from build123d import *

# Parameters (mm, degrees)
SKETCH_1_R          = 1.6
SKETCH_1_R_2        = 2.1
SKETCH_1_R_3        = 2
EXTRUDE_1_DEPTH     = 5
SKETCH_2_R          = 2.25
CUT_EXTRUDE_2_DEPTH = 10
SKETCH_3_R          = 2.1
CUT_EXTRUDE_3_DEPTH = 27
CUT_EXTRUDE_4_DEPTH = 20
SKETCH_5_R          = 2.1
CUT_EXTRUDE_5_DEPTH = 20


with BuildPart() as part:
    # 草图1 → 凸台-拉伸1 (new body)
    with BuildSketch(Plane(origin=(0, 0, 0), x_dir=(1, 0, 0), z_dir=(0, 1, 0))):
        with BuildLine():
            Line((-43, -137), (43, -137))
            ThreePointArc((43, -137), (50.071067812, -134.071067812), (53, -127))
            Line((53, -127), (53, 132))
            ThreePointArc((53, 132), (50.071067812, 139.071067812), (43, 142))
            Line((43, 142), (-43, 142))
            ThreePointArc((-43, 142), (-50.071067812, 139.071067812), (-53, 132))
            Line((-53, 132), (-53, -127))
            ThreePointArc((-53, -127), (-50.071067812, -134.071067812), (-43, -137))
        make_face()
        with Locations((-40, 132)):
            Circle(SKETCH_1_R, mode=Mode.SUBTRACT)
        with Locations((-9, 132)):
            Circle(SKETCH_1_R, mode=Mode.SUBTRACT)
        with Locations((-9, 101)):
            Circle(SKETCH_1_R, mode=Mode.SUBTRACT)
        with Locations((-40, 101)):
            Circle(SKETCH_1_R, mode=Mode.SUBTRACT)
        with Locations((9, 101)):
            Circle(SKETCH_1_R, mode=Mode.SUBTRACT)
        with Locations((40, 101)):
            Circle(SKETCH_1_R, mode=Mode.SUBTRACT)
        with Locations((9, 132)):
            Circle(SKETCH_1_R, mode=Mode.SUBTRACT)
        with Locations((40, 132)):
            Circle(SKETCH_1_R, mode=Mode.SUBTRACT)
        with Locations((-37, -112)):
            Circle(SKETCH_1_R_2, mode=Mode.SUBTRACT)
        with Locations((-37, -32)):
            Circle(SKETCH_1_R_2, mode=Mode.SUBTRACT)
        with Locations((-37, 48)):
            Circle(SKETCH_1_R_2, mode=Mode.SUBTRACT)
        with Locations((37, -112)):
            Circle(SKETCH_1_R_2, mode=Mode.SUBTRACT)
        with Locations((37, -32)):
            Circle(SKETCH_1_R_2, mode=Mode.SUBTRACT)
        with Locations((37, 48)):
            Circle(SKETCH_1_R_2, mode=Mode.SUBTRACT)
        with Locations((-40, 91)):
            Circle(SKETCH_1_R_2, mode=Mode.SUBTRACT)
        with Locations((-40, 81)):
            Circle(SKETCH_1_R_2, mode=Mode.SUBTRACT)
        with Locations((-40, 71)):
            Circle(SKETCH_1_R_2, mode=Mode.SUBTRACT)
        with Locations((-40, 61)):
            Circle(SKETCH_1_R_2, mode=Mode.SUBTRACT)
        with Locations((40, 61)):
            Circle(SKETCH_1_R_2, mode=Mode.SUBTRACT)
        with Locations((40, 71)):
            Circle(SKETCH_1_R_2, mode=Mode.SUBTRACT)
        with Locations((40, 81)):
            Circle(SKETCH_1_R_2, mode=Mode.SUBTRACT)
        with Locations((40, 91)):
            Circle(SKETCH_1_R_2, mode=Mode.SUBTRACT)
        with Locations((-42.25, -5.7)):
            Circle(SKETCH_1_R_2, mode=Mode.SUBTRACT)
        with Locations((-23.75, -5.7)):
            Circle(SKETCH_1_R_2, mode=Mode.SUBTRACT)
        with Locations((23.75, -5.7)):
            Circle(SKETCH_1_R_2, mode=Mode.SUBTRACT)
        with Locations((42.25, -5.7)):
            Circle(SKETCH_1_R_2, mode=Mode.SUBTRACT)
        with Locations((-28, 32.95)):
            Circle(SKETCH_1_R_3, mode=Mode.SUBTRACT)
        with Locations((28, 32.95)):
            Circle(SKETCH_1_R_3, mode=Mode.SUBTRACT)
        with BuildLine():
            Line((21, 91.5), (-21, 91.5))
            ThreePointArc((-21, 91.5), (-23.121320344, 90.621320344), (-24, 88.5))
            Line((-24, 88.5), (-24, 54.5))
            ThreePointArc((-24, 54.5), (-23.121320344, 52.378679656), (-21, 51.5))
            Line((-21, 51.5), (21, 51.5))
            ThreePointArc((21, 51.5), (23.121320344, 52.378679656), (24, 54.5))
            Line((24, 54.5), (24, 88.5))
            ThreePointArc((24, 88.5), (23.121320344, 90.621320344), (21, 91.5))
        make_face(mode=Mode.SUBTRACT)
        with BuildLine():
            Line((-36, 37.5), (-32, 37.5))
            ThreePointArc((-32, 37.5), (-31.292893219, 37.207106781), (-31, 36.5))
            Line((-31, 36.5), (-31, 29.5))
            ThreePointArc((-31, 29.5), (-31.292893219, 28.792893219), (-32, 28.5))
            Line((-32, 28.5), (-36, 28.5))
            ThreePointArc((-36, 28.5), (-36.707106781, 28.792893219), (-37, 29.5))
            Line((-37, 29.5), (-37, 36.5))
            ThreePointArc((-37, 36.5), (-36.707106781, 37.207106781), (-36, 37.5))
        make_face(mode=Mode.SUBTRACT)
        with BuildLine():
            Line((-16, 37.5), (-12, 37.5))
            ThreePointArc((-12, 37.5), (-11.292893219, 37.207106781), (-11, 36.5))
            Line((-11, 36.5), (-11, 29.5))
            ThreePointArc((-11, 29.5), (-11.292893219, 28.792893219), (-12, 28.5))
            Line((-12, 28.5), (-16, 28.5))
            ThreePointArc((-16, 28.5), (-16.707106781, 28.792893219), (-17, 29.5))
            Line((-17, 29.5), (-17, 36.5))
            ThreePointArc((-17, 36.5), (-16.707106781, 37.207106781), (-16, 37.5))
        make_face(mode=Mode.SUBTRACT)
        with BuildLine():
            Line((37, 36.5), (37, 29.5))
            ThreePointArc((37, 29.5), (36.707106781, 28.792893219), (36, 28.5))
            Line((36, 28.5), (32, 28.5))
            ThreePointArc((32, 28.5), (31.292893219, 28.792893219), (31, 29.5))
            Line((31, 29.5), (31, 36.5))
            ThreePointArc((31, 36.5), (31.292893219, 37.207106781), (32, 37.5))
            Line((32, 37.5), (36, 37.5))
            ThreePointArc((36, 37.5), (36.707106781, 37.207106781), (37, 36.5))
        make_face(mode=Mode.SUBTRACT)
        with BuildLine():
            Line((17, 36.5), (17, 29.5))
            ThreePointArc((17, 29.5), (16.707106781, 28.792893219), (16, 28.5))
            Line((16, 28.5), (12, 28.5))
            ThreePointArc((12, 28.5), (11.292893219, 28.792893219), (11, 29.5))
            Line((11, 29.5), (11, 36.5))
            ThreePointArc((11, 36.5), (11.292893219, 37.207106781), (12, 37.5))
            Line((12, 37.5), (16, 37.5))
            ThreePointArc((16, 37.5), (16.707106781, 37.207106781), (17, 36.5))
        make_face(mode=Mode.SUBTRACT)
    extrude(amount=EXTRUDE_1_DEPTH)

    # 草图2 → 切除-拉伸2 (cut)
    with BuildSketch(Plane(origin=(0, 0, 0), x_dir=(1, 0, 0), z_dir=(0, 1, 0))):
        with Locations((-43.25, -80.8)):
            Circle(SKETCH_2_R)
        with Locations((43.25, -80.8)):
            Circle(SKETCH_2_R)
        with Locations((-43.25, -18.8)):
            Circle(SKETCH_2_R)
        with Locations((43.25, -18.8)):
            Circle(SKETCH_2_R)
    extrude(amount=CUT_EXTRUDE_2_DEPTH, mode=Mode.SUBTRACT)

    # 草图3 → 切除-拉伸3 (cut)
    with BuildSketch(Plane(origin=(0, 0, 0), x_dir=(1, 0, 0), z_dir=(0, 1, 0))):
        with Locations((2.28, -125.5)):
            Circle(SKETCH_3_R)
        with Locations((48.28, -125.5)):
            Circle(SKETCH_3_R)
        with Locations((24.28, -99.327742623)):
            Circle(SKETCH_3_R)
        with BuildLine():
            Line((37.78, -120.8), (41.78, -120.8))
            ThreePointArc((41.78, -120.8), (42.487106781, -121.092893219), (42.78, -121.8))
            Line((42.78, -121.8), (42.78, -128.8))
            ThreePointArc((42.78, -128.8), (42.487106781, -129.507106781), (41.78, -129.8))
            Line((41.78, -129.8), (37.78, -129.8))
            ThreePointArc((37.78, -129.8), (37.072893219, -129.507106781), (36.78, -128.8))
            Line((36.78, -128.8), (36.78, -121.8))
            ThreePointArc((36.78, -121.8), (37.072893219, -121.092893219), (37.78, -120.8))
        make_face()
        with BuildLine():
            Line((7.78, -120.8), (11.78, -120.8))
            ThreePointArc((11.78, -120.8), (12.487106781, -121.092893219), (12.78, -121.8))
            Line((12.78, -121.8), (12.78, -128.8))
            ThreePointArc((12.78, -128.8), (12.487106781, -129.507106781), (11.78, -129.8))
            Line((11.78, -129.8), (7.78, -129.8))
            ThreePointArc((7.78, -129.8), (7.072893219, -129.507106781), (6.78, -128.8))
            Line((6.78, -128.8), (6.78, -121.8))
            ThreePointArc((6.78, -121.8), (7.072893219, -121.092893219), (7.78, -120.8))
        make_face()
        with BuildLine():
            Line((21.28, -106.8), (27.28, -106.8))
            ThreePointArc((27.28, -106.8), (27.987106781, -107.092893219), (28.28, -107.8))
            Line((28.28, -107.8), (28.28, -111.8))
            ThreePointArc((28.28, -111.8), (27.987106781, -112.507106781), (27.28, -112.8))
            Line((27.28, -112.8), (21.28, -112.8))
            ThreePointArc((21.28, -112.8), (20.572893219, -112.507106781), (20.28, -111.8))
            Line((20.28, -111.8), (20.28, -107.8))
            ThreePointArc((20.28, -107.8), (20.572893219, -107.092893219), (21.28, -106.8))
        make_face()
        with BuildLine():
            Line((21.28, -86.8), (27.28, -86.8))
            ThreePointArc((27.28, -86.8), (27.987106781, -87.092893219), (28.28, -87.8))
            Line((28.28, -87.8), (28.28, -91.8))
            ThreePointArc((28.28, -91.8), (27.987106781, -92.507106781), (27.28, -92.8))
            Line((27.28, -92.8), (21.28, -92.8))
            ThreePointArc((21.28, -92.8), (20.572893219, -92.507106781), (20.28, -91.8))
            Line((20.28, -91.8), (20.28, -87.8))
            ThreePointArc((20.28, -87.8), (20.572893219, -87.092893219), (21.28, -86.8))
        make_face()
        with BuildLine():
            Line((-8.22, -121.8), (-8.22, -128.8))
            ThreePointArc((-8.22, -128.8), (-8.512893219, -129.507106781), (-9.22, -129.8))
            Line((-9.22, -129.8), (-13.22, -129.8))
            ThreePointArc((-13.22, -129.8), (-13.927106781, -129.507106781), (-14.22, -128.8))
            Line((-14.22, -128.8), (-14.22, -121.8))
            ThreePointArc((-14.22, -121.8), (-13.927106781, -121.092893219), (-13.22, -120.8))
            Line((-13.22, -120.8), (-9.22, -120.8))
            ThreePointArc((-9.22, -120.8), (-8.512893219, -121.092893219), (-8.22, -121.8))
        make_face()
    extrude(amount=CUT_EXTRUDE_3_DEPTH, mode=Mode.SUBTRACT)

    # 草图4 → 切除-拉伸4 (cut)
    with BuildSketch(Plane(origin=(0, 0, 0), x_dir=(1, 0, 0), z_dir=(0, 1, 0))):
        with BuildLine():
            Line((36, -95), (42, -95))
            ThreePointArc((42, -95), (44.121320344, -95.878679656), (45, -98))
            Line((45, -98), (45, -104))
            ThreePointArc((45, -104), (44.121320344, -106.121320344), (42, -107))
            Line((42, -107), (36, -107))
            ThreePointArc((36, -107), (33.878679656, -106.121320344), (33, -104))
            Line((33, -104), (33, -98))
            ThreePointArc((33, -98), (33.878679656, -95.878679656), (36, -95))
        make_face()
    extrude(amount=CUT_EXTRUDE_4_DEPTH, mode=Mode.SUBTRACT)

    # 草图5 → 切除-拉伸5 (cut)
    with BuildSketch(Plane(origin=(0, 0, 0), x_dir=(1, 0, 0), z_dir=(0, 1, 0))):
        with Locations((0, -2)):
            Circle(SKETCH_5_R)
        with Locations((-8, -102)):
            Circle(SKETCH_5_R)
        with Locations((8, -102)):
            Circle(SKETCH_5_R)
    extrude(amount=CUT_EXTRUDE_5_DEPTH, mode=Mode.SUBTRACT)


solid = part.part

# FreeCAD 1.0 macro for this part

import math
import FreeCAD as App
import Part
import Sketcher

V = App.Vector

doc = App.newDocument("Part")
body = doc.addObject("PartDesign::Body", "Body")

# Sketch on XZ plane
sketch1 = body.newObject("Sketcher::SketchObject", "Sketch")
sketch1.AttachmentSupport = (doc.getObject("XZ_Plane"), [""])
sketch1.MapMode = "FlatFace"
sketch1.addGeometry([
    Part.LineSegment(V(-43, 137, 0), V(43, 137, 0)),  # 0
    Part.ArcOfCircle(Part.Circle(V(43, 127, 0), V(0, 0, 1), 10), math.radians(0), math.radians(90)),  # 1
    Part.LineSegment(V(53, 127, 0), V(53, -132, 0)),  # 2
    Part.ArcOfCircle(Part.Circle(V(43, -132, 0), V(0, 0, 1), 10), math.radians(-90), math.radians(0)),  # 3
    Part.LineSegment(V(43, -142, 0), V(-43, -142, 0)),  # 4
    Part.ArcOfCircle(Part.Circle(V(-43, -132, 0), V(0, 0, 1), 10), math.radians(180), math.radians(270)),  # 5
    Part.LineSegment(V(-53, -132, 0), V(-53, 127, 0)),  # 6
    Part.ArcOfCircle(Part.Circle(V(-43, 127, 0), V(0, 0, 1), 10), math.radians(90), math.radians(180)),  # 7
    Part.Circle(V(-37, 112, 0), V(0, 0, 1), 2.1),  # 8
    Part.Circle(V(-37, 32, 0), V(0, 0, 1), 2.1),  # 9
    Part.Circle(V(-42.25, 5.7, 0), V(0, 0, 1), 2.1),  # 10
    Part.Circle(V(-23.75, 5.7, 0), V(0, 0, 1), 2.1),  # 11
    Part.Circle(V(37, 112, 0), V(0, 0, 1), 2.1),  # 12
    Part.Circle(V(37, 32, 0), V(0, 0, 1), 2.1),  # 13
    Part.Circle(V(23.75, 5.7, 0), V(0, 0, 1), 2.1),  # 14
    Part.Circle(V(42.25, 5.7, 0), V(0, 0, 1), 2.1),  # 15
    Part.ArcOfCircle(Part.Circle(V(-36, -36.5, 0), V(0, 0, 1), 1), math.radians(-180), math.radians(-90)),  # 16
    Part.LineSegment(V(-36, -37.5, 0), V(-32, -37.5, 0)),  # 17
    Part.ArcOfCircle(Part.Circle(V(-32, -36.5, 0), V(0, 0, 1), 1), math.radians(-90), math.radians(0)),  # 18
    Part.LineSegment(V(-31, -36.5, 0), V(-31, -29.5, 0)),  # 19
    Part.ArcOfCircle(Part.Circle(V(-32, -29.5, 0), V(0, 0, 1), 1), math.radians(0), math.radians(90)),  # 20
    Part.LineSegment(V(-32, -28.5, 0), V(-36, -28.5, 0)),  # 21
    Part.ArcOfCircle(Part.Circle(V(-36, -29.5, 0), V(0, 0, 1), 1), math.radians(90), math.radians(180)),  # 22
    Part.LineSegment(V(-37, -29.5, 0), V(-37, -36.5, 0)),  # 23
    Part.Circle(V(-28, -32.95, 0), V(0, 0, 1), 2),  # 24
    Part.Circle(V(-37, -48, 0), V(0, 0, 1), 2.1),  # 25
    Part.Circle(V(-40, -61, 0), V(0, 0, 1), 2.1),  # 26
    Part.Circle(V(-40, -71, 0), V(0, 0, 1), 2.1),  # 27
    Part.ArcOfCircle(Part.Circle(V(-16, -36.5, 0), V(0, 0, 1), 1), math.radians(-180), math.radians(-90)),  # 28
    Part.LineSegment(V(-16, -37.5, 0), V(-12, -37.5, 0)),  # 29
    Part.ArcOfCircle(Part.Circle(V(-12, -36.5, 0), V(0, 0, 1), 1), math.radians(-90), math.radians(0)),  # 30
    Part.LineSegment(V(-11, -36.5, 0), V(-11, -29.5, 0)),  # 31
    Part.ArcOfCircle(Part.Circle(V(-12, -29.5, 0), V(0, 0, 1), 1), math.radians(0), math.radians(90)),  # 32
    Part.LineSegment(V(-12, -28.5, 0), V(-16, -28.5, 0)),  # 33
    Part.ArcOfCircle(Part.Circle(V(-16, -29.5, 0), V(0, 0, 1), 1), math.radians(90), math.radians(180)),  # 34
    Part.LineSegment(V(-17, -29.5, 0), V(-17, -36.5, 0)),  # 35
    Part.Circle(V(-40, -81, 0), V(0, 0, 1), 2.1),  # 36
    Part.Circle(V(-40, -91, 0), V(0, 0, 1), 2.1),  # 37
    Part.Circle(V(-40, -101, 0), V(0, 0, 1), 1.6),  # 38
    Part.Circle(V(-40, -132, 0), V(0, 0, 1), 1.6),  # 39
    Part.Circle(V(-9, -101, 0), V(0, 0, 1), 1.6),  # 40
    Part.Circle(V(-9, -132, 0), V(0, 0, 1), 1.6),  # 41
    Part.ArcOfCircle(Part.Circle(V(16, -36.5, 0), V(0, 0, 1), 1), math.radians(-90), math.radians(0)),  # 42
    Part.LineSegment(V(17, -36.5, 0), V(17, -29.5, 0)),  # 43
    Part.ArcOfCircle(Part.Circle(V(16, -29.5, 0), V(0, 0, 1), 1), math.radians(0), math.radians(90)),  # 44
    Part.LineSegment(V(16, -28.5, 0), V(12, -28.5, 0)),  # 45
    Part.ArcOfCircle(Part.Circle(V(12, -29.5, 0), V(0, 0, 1), 1), math.radians(90), math.radians(180)),  # 46
    Part.LineSegment(V(11, -29.5, 0), V(11, -36.5, 0)),  # 47
    Part.ArcOfCircle(Part.Circle(V(12, -36.5, 0), V(0, 0, 1), 1), math.radians(-180), math.radians(-90)),  # 48
    Part.LineSegment(V(12, -37.5, 0), V(16, -37.5, 0)),  # 49
    Part.LineSegment(V(-21, -91.5, 0), V(21, -91.5, 0)),  # 50
    Part.ArcOfCircle(Part.Circle(V(21, -88.5, 0), V(0, 0, 1), 3), math.radians(-90), math.radians(0)),  # 51
    Part.LineSegment(V(24, -88.5, 0), V(24, -54.5, 0)),  # 52
    Part.ArcOfCircle(Part.Circle(V(21, -54.5, 0), V(0, 0, 1), 3), math.radians(0), math.radians(90)),  # 53
    Part.LineSegment(V(21, -51.5, 0), V(-21, -51.5, 0)),  # 54
    Part.ArcOfCircle(Part.Circle(V(-21, -54.5, 0), V(0, 0, 1), 3), math.radians(90), math.radians(180)),  # 55
    Part.LineSegment(V(-24, -54.5, 0), V(-24, -88.5, 0)),  # 56
    Part.ArcOfCircle(Part.Circle(V(-21, -88.5, 0), V(0, 0, 1), 3), math.radians(180), math.radians(270)),  # 57
    Part.Circle(V(28, -32.95, 0), V(0, 0, 1), 2),  # 58
    Part.ArcOfCircle(Part.Circle(V(36, -36.5, 0), V(0, 0, 1), 1), math.radians(-90), math.radians(0)),  # 59
    Part.LineSegment(V(37, -36.5, 0), V(37, -29.5, 0)),  # 60
    Part.ArcOfCircle(Part.Circle(V(36, -29.5, 0), V(0, 0, 1), 1), math.radians(0), math.radians(90)),  # 61
    Part.LineSegment(V(36, -28.5, 0), V(32, -28.5, 0)),  # 62
    Part.ArcOfCircle(Part.Circle(V(32, -29.5, 0), V(0, 0, 1), 1), math.radians(90), math.radians(180)),  # 63
    Part.LineSegment(V(31, -29.5, 0), V(31, -36.5, 0)),  # 64
    Part.ArcOfCircle(Part.Circle(V(32, -36.5, 0), V(0, 0, 1), 1), math.radians(-180), math.radians(-90)),  # 65
    Part.LineSegment(V(32, -37.5, 0), V(36, -37.5, 0)),  # 66
    Part.Circle(V(37, -48, 0), V(0, 0, 1), 2.1),  # 67
    Part.Circle(V(40, -61, 0), V(0, 0, 1), 2.1),  # 68
    Part.Circle(V(40, -71, 0), V(0, 0, 1), 2.1),  # 69
    Part.Circle(V(9, -101, 0), V(0, 0, 1), 1.6),  # 70
    Part.Circle(V(9, -132, 0), V(0, 0, 1), 1.6),  # 71
    Part.Circle(V(40, -81, 0), V(0, 0, 1), 2.1),  # 72
    Part.Circle(V(40, -91, 0), V(0, 0, 1), 2.1),  # 73
    Part.Circle(V(40, -101, 0), V(0, 0, 1), 1.6),  # 74
    Part.Circle(V(40, -132, 0), V(0, 0, 1), 1.6),  # 75
], False)
sketch1.addConstraint([
    Sketcher.Constraint("Tangent", 0, 2, 1, 2),
    Sketcher.Constraint("Tangent", 1, 1, 2, 1),
    Sketcher.Constraint("Tangent", 2, 2, 3, 2),
    Sketcher.Constraint("Tangent", 3, 1, 4, 1),
    Sketcher.Constraint("Tangent", 4, 2, 5, 2),
    Sketcher.Constraint("Tangent", 5, 1, 6, 1),
    Sketcher.Constraint("Tangent", 6, 2, 7, 2),
    Sketcher.Constraint("Tangent", 7, 1, 0, 1),
    Sketcher.Constraint("Tangent", 16, 2, 17, 1),
    Sketcher.Constraint("Tangent", 17, 2, 18, 1),
    Sketcher.Constraint("Tangent", 18, 2, 19, 1),
    Sketcher.Constraint("Tangent", 19, 2, 20, 1),
    Sketcher.Constraint("Tangent", 20, 2, 21, 1),
    Sketcher.Constraint("Tangent", 21, 2, 22, 1),
    Sketcher.Constraint("Tangent", 22, 2, 23, 1),
    Sketcher.Constraint("Tangent", 23, 2, 16, 1),
    Sketcher.Constraint("Tangent", 28, 2, 29, 1),
    Sketcher.Constraint("Tangent", 29, 2, 30, 1),
    Sketcher.Constraint("Tangent", 30, 2, 31, 1),
    Sketcher.Constraint("Tangent", 31, 2, 32, 1),
    Sketcher.Constraint("Tangent", 32, 2, 33, 1),
    Sketcher.Constraint("Tangent", 33, 2, 34, 1),
    Sketcher.Constraint("Tangent", 34, 2, 35, 1),
    Sketcher.Constraint("Tangent", 35, 2, 28, 1),
    Sketcher.Constraint("Tangent", 42, 2, 43, 1),
    Sketcher.Constraint("Tangent", 43, 2, 44, 1),
    Sketcher.Constraint("Tangent", 44, 2, 45, 1),
    Sketcher.Constraint("Tangent", 45, 2, 46, 1),
    Sketcher.Constraint("Tangent", 46, 2, 47, 1),
    Sketcher.Constraint("Tangent", 47, 2, 48, 1),
    Sketcher.Constraint("Tangent", 48, 2, 49, 1),
    Sketcher.Constraint("Tangent", 49, 2, 42, 1),
    Sketcher.Constraint("Tangent", 50, 2, 51, 1),
    Sketcher.Constraint("Tangent", 51, 2, 52, 1),
    Sketcher.Constraint("Tangent", 52, 2, 53, 1),
    Sketcher.Constraint("Tangent", 53, 2, 54, 1),
    Sketcher.Constraint("Tangent", 54, 2, 55, 1),
    Sketcher.Constraint("Tangent", 55, 2, 56, 1),
    Sketcher.Constraint("Tangent", 56, 2, 57, 1),
    Sketcher.Constraint("Tangent", 57, 2, 50, 1),
    Sketcher.Constraint("Tangent", 59, 2, 60, 1),
    Sketcher.Constraint("Tangent", 60, 2, 61, 1),
    Sketcher.Constraint("Tangent", 61, 2, 62, 1),
    Sketcher.Constraint("Tangent", 62, 2, 63, 1),
    Sketcher.Constraint("Tangent", 63, 2, 64, 1),
    Sketcher.Constraint("Tangent", 64, 2, 65, 1),
    Sketcher.Constraint("Tangent", 65, 2, 66, 1),
    Sketcher.Constraint("Tangent", 66, 2, 59, 1),
    Sketcher.Constraint("Horizontal", 0),
    Sketcher.Constraint("Vertical", 2),
    Sketcher.Constraint("Horizontal", 4),
    Sketcher.Constraint("Vertical", 6),
    Sketcher.Constraint("Horizontal", 17),
    Sketcher.Constraint("Vertical", 19),
    Sketcher.Constraint("Horizontal", 21),
    Sketcher.Constraint("Vertical", 23),
    Sketcher.Constraint("Horizontal", 29),
    Sketcher.Constraint("Vertical", 31),
    Sketcher.Constraint("Horizontal", 33),
    Sketcher.Constraint("Vertical", 35),
    Sketcher.Constraint("Vertical", 43),
    Sketcher.Constraint("Horizontal", 45),
    Sketcher.Constraint("Vertical", 47),
    Sketcher.Constraint("Horizontal", 49),
    Sketcher.Constraint("Horizontal", 50),
    Sketcher.Constraint("Vertical", 52),
    Sketcher.Constraint("Horizontal", 54),
    Sketcher.Constraint("Vertical", 56),
    Sketcher.Constraint("Vertical", 60),
    Sketcher.Constraint("Horizontal", 62),
    Sketcher.Constraint("Vertical", 64),
    Sketcher.Constraint("Horizontal", 66),
    Sketcher.Constraint("Equal", 1, 3),
    Sketcher.Constraint("Equal", 3, 5),
    Sketcher.Constraint("Equal", 5, 7),
    Sketcher.Constraint("Equal", 8, 9),
    Sketcher.Constraint("Equal", 9, 10),
    Sketcher.Constraint("Equal", 10, 11),
    Sketcher.Constraint("Equal", 11, 12),
    Sketcher.Constraint("Equal", 12, 13),
    Sketcher.Constraint("Equal", 13, 14),
    Sketcher.Constraint("Equal", 14, 15),
    Sketcher.Constraint("Equal", 16, 18),
    Sketcher.Constraint("Equal", 18, 20),
    Sketcher.Constraint("Equal", 20, 22),
    Sketcher.Constraint("Equal", 15, 25),
    Sketcher.Constraint("Equal", 25, 26),
    Sketcher.Constraint("Equal", 26, 27),
    Sketcher.Constraint("Equal", 22, 28),
    Sketcher.Constraint("Equal", 28, 30),
    Sketcher.Constraint("Equal", 30, 32),
    Sketcher.Constraint("Equal", 32, 34),
    Sketcher.Constraint("Equal", 27, 36),
    Sketcher.Constraint("Equal", 36, 37),
    Sketcher.Constraint("Equal", 38, 39),
    Sketcher.Constraint("Equal", 39, 40),
    Sketcher.Constraint("Equal", 40, 41),
    Sketcher.Constraint("Equal", 34, 42),
    Sketcher.Constraint("Equal", 42, 44),
    Sketcher.Constraint("Equal", 44, 46),
    Sketcher.Constraint("Equal", 46, 48),
    Sketcher.Constraint("Equal", 51, 53),
    Sketcher.Constraint("Equal", 53, 55),
    Sketcher.Constraint("Equal", 55, 57),
    Sketcher.Constraint("Equal", 24, 58),
    Sketcher.Constraint("Equal", 48, 59),
    Sketcher.Constraint("Equal", 59, 61),
    Sketcher.Constraint("Equal", 61, 63),
    Sketcher.Constraint("Equal", 63, 65),
    Sketcher.Constraint("Equal", 37, 67),
    Sketcher.Constraint("Equal", 67, 68),
    Sketcher.Constraint("Equal", 68, 69),
    Sketcher.Constraint("Equal", 41, 70),
    Sketcher.Constraint("Equal", 70, 71),
    Sketcher.Constraint("Equal", 69, 72),
    Sketcher.Constraint("Equal", 72, 73),
    Sketcher.Constraint("Equal", 71, 74),
    Sketcher.Constraint("Equal", 74, 75),
    Sketcher.Constraint("Symmetric", 8, 3, 12, 3, -2),
    Sketcher.Constraint("Symmetric", 9, 3, 13, 3, -2),
    Sketcher.Constraint("Symmetric", 11, 3, 14, 3, -2),
    Sketcher.Constraint("Symmetric", 10, 3, 15, 3, -2),
    Sketcher.Constraint("Symmetric", 28, 3, 42, 3, -2),
    Sketcher.Constraint("Symmetric", 32, 3, 46, 3, -2),
    Sketcher.Constraint("Symmetric", 24, 3, 58, 3, -2),
    Sketcher.Constraint("Symmetric", 16, 3, 59, 3, -2),
    Sketcher.Constraint("Symmetric", 20, 3, 63, 3, -2),
    Sketcher.Constraint("Symmetric", 25, 3, 67, 3, -2),
    Sketcher.Constraint("Symmetric", 26, 3, 68, 3, -2),
    Sketcher.Constraint("Symmetric", 27, 3, 69, 3, -2),
    Sketcher.Constraint("Symmetric", 40, 3, 70, 3, -2),
    Sketcher.Constraint("Symmetric", 41, 3, 71, 3, -2),
    Sketcher.Constraint("Symmetric", 36, 3, 72, 3, -2),
    Sketcher.Constraint("Symmetric", 37, 3, 73, 3, -2),
    Sketcher.Constraint("Symmetric", 38, 3, 74, 3, -2),
    Sketcher.Constraint("Symmetric", 39, 3, 75, 3, -2),
    Sketcher.Constraint("Horizontal", 10, 3, 11, 3),
    Sketcher.Constraint("Horizontal", 18, 3, 28, 3),
    Sketcher.Constraint("Horizontal", 22, 3, 32, 3),
    Sketcher.Constraint("Horizontal", 5, 3, 39, 3),
    Sketcher.Constraint("Horizontal", 38, 3, 40, 3),
    Sketcher.Constraint("Horizontal", 39, 3, 41, 3),
    Sketcher.Constraint("Vertical", 8, 3, 9, 3),
    Sketcher.Constraint("Vertical", 9, 3, 25, 3),
    Sketcher.Constraint("Vertical", 26, 3, 27, 3),
    Sketcher.Constraint("Vertical", 27, 3, 36, 3),
    Sketcher.Constraint("Vertical", 36, 3, 37, 3),
    Sketcher.Constraint("Vertical", 37, 3, 38, 3),
    Sketcher.Constraint("Vertical", 38, 3, 39, 3),
    Sketcher.Constraint("Vertical", 40, 3, 41, 3),
    Sketcher.Constraint("Vertical", 25, 3, 22, 2),
    Sketcher.Constraint("Equal", 21, 29),
    Sketcher.Constraint("Diameter", 24, 4.0),
    Sketcher.Constraint("Radius", 1, 10.0),
    Sketcher.Constraint("Radius", 16, 1.0),
    Sketcher.Constraint("Radius", 51, 3.0),
    Sketcher.Constraint("Diameter", 8, 4.2),
    Sketcher.Constraint("Diameter", 38, 3.2),
    Sketcher.Constraint("DistanceX", 0, 1, 0, 2, 86.0),
    Sketcher.Constraint("DistanceX", 17, 1, 17, 2, 4.0),
    Sketcher.Constraint("DistanceX", 50, 1, 50, 2, 42.0),
    Sketcher.Constraint("DistanceY", 2, 2, 2, 1, 259.0),
    Sketcher.Constraint("DistanceY", 19, 1, 19, 2, 7.0),
    Sketcher.Constraint("DistanceY", 52, 1, 52, 2, 34.0),
    Sketcher.Constraint("DistanceX", -1, 1, 1, 3, 43.0),
    Sketcher.Constraint("DistanceY", -1, 1, 1, 3, 127.0),
    Sketcher.Constraint("DistanceX", 8, 3, -1, 1, 37.0),
    Sketcher.Constraint("DistanceY", -1, 1, 8, 3, 112.0),
    Sketcher.Constraint("DistanceY", -1, 1, 9, 3, 32.0),
    Sketcher.Constraint("DistanceX", 24, 3, -1, 1, 28.0),
    Sketcher.Constraint("DistanceY", 25, 3, -1, 1, 48.0),
    Sketcher.Constraint("DistanceX", 26, 3, -1, 1, 40.0),
    Sketcher.Constraint("DistanceY", 26, 3, -1, 1, 61.0),
    Sketcher.Constraint("DistanceY", 27, 3, -1, 1, 71.0),
    Sketcher.Constraint("DistanceX", 28, 3, -1, 1, 16.0),
    Sketcher.Constraint("DistanceY", 36, 3, -1, 1, 81.0),
    Sketcher.Constraint("DistanceY", 37, 3, -1, 1, 91.0),
    Sketcher.Constraint("DistanceY", 38, 3, -1, 1, 101.0),
    Sketcher.Constraint("DistanceX", 40, 3, -1, 1, 9.0),
    Sketcher.Constraint("DistanceX", -1, 1, 51, 3, 21.0),
    Sketcher.Constraint("DistanceY", -1, 1, 10, 3, 5.7),
    Sketcher.Constraint("DistanceY", 16, 3, -1, 1, 36.5),
    Sketcher.Constraint("DistanceY", 51, 3, -1, 1, 88.5),
    Sketcher.Constraint("DistanceX", 10, 3, -1, 1, 42.25),
    Sketcher.Constraint("DistanceX", 11, 3, -1, 1, 23.75),
    Sketcher.Constraint("DistanceY", 24, 3, -1, 1, 32.95),
])
pad1 = body.newObject("PartDesign::Pad", "Pad")
pad1.Profile = sketch1
pad1.Length = 5
pad1.Reversed = True

# Sketch on XZ plane
sketch2 = body.newObject("Sketcher::SketchObject", "Sketch001")
sketch2.AttachmentSupport = (doc.getObject("XZ_Plane"), [""])
sketch2.MapMode = "FlatFace"
sketch2.addGeometry([
    Part.Circle(V(-43.25, 80.8, 0), V(0, 0, 1), 2.25),
    Part.Circle(V(43.25, 80.8, 0), V(0, 0, 1), 2.25),
    Part.Circle(V(-43.25, 18.8, 0), V(0, 0, 1), 2.25),
    Part.Circle(V(43.25, 18.8, 0), V(0, 0, 1), 2.25),
], False)
sketch2.addConstraint([
    Sketcher.Constraint("Equal", 0, 1),
    Sketcher.Constraint("Equal", 1, 2),
    Sketcher.Constraint("Equal", 2, 3),
    Sketcher.Constraint("Symmetric", 0, 3, 1, 3, -2),
    Sketcher.Constraint("Symmetric", 2, 3, 3, 3, -2),
    Sketcher.Constraint("Vertical", 0, 3, 2, 3),
    Sketcher.Constraint("Diameter", 0, 4.5),
    Sketcher.Constraint("DistanceY", 2, 3, 0, 3, 62.0),
    Sketcher.Constraint("DistanceY", -1, 1, 0, 3, 80.8),
    Sketcher.Constraint("DistanceX", 0, 3, 1, 3, 86.5),
])
pocket1 = body.newObject("PartDesign::Pocket", "Pocket")
pocket1.Profile = sketch2
pocket1.Length = 10

# Sketch on XZ plane
sketch3 = body.newObject("Sketcher::SketchObject", "Sketch002")
sketch3.AttachmentSupport = (doc.getObject("XZ_Plane"), [""])
sketch3.MapMode = "FlatFace"
sketch3.addGeometry([
    Part.Circle(V(2.28, 125.5, 0), V(0, 0, 1), 2.1),  # 0
    Part.Circle(V(48.28, 125.5, 0), V(0, 0, 1), 2.1),  # 1
    Part.Circle(V(24.28, 99.327743, 0), V(0, 0, 1), 2.1),  # 2
    Part.LineSegment(V(41.78, 120.8, 0), V(37.78, 120.8, 0)),  # 3
    Part.ArcOfCircle(Part.Circle(V(37.78, 121.8, 0), V(0, 0, 1), 1), math.radians(-180), math.radians(-90)),  # 4
    Part.LineSegment(V(36.78, 121.8, 0), V(36.78, 128.8, 0)),  # 5
    Part.ArcOfCircle(Part.Circle(V(37.78, 128.8, 0), V(0, 0, 1), 1), math.radians(90), math.radians(180)),  # 6
    Part.LineSegment(V(37.78, 129.8, 0), V(41.78, 129.8, 0)),  # 7
    Part.ArcOfCircle(Part.Circle(V(41.78, 128.8, 0), V(0, 0, 1), 1), math.radians(0), math.radians(90)),  # 8
    Part.LineSegment(V(42.78, 128.8, 0), V(42.78, 121.8, 0)),  # 9
    Part.ArcOfCircle(Part.Circle(V(41.78, 121.8, 0), V(0, 0, 1), 1), math.radians(-90), math.radians(0)),  # 10
    Part.LineSegment(V(11.78, 120.8, 0), V(7.78, 120.8, 0)),  # 11
    Part.ArcOfCircle(Part.Circle(V(7.78, 121.8, 0), V(0, 0, 1), 1), math.radians(-180), math.radians(-90)),  # 12
    Part.LineSegment(V(6.78, 121.8, 0), V(6.78, 128.8, 0)),  # 13
    Part.ArcOfCircle(Part.Circle(V(7.78, 128.8, 0), V(0, 0, 1), 1), math.radians(90), math.radians(180)),  # 14
    Part.LineSegment(V(7.78, 129.8, 0), V(11.78, 129.8, 0)),  # 15
    Part.ArcOfCircle(Part.Circle(V(11.78, 128.8, 0), V(0, 0, 1), 1), math.radians(0), math.radians(90)),  # 16
    Part.LineSegment(V(12.78, 128.8, 0), V(12.78, 121.8, 0)),  # 17
    Part.ArcOfCircle(Part.Circle(V(11.78, 121.8, 0), V(0, 0, 1), 1), math.radians(-90), math.radians(0)),  # 18
    Part.LineSegment(V(27.28, 106.8, 0), V(21.28, 106.8, 0)),  # 19
    Part.ArcOfCircle(Part.Circle(V(21.28, 107.8, 0), V(0, 0, 1), 1), math.radians(-180), math.radians(-90)),  # 20
    Part.LineSegment(V(20.28, 107.8, 0), V(20.28, 111.8, 0)),  # 21
    Part.ArcOfCircle(Part.Circle(V(21.28, 111.8, 0), V(0, 0, 1), 1), math.radians(90), math.radians(180)),  # 22
    Part.LineSegment(V(21.28, 112.8, 0), V(27.28, 112.8, 0)),  # 23
    Part.ArcOfCircle(Part.Circle(V(27.28, 111.8, 0), V(0, 0, 1), 1), math.radians(0), math.radians(90)),  # 24
    Part.LineSegment(V(28.28, 111.8, 0), V(28.28, 107.8, 0)),  # 25
    Part.ArcOfCircle(Part.Circle(V(27.28, 107.8, 0), V(0, 0, 1), 1), math.radians(-90), math.radians(0)),  # 26
    Part.LineSegment(V(27.28, 86.8, 0), V(21.28, 86.8, 0)),  # 27
    Part.ArcOfCircle(Part.Circle(V(21.28, 87.8, 0), V(0, 0, 1), 1), math.radians(-180), math.radians(-90)),  # 28
    Part.LineSegment(V(20.28, 87.8, 0), V(20.28, 91.8, 0)),  # 29
    Part.ArcOfCircle(Part.Circle(V(21.28, 91.8, 0), V(0, 0, 1), 1), math.radians(90), math.radians(180)),  # 30
    Part.LineSegment(V(21.28, 92.8, 0), V(27.28, 92.8, 0)),  # 31
    Part.ArcOfCircle(Part.Circle(V(27.28, 91.8, 0), V(0, 0, 1), 1), math.radians(0), math.radians(90)),  # 32
    Part.LineSegment(V(28.28, 91.8, 0), V(28.28, 87.8, 0)),  # 33
    Part.ArcOfCircle(Part.Circle(V(27.28, 87.8, 0), V(0, 0, 1), 1), math.radians(-90), math.radians(0)),  # 34
    Part.LineSegment(V(-8.22, 128.8, 0), V(-8.22, 121.8, 0)),  # 35
    Part.ArcOfCircle(Part.Circle(V(-9.22, 121.8, 0), V(0, 0, 1), 1), math.radians(-90), math.radians(0)),  # 36
    Part.LineSegment(V(-9.22, 120.8, 0), V(-13.22, 120.8, 0)),  # 37
    Part.ArcOfCircle(Part.Circle(V(-13.22, 121.8, 0), V(0, 0, 1), 1), math.radians(-180), math.radians(-90)),  # 38
    Part.LineSegment(V(-14.22, 121.8, 0), V(-14.22, 128.8, 0)),  # 39
    Part.ArcOfCircle(Part.Circle(V(-13.22, 128.8, 0), V(0, 0, 1), 1), math.radians(90), math.radians(180)),  # 40
    Part.LineSegment(V(-13.22, 129.8, 0), V(-9.22, 129.8, 0)),  # 41
    Part.ArcOfCircle(Part.Circle(V(-9.22, 128.8, 0), V(0, 0, 1), 1), math.radians(0), math.radians(90)),  # 42
], False)
sketch3.addConstraint([
    Sketcher.Constraint("Tangent", 3, 2, 4, 2),
    Sketcher.Constraint("Tangent", 4, 1, 5, 1),
    Sketcher.Constraint("Tangent", 5, 2, 6, 2),
    Sketcher.Constraint("Tangent", 6, 1, 7, 1),
    Sketcher.Constraint("Tangent", 7, 2, 8, 2),
    Sketcher.Constraint("Tangent", 8, 1, 9, 1),
    Sketcher.Constraint("Tangent", 9, 2, 10, 2),
    Sketcher.Constraint("Tangent", 10, 1, 3, 1),
    Sketcher.Constraint("Tangent", 11, 2, 12, 2),
    Sketcher.Constraint("Tangent", 12, 1, 13, 1),
    Sketcher.Constraint("Tangent", 13, 2, 14, 2),
    Sketcher.Constraint("Tangent", 14, 1, 15, 1),
    Sketcher.Constraint("Tangent", 15, 2, 16, 2),
    Sketcher.Constraint("Tangent", 16, 1, 17, 1),
    Sketcher.Constraint("Tangent", 17, 2, 18, 2),
    Sketcher.Constraint("Tangent", 18, 1, 11, 1),
    Sketcher.Constraint("Tangent", 19, 2, 20, 2),
    Sketcher.Constraint("Tangent", 20, 1, 21, 1),
    Sketcher.Constraint("Tangent", 21, 2, 22, 2),
    Sketcher.Constraint("Tangent", 22, 1, 23, 1),
    Sketcher.Constraint("Tangent", 23, 2, 24, 2),
    Sketcher.Constraint("Tangent", 24, 1, 25, 1),
    Sketcher.Constraint("Tangent", 25, 2, 26, 2),
    Sketcher.Constraint("Tangent", 26, 1, 19, 1),
    Sketcher.Constraint("Tangent", 27, 2, 28, 2),
    Sketcher.Constraint("Tangent", 28, 1, 29, 1),
    Sketcher.Constraint("Tangent", 29, 2, 30, 2),
    Sketcher.Constraint("Tangent", 30, 1, 31, 1),
    Sketcher.Constraint("Tangent", 31, 2, 32, 2),
    Sketcher.Constraint("Tangent", 32, 1, 33, 1),
    Sketcher.Constraint("Tangent", 33, 2, 34, 2),
    Sketcher.Constraint("Tangent", 34, 1, 27, 1),
    Sketcher.Constraint("Tangent", 35, 2, 36, 2),
    Sketcher.Constraint("Tangent", 36, 1, 37, 1),
    Sketcher.Constraint("Tangent", 37, 2, 38, 2),
    Sketcher.Constraint("Tangent", 38, 1, 39, 1),
    Sketcher.Constraint("Tangent", 39, 2, 40, 2),
    Sketcher.Constraint("Tangent", 40, 1, 41, 1),
    Sketcher.Constraint("Tangent", 41, 2, 42, 2),
    Sketcher.Constraint("Tangent", 42, 1, 35, 1),
    Sketcher.Constraint("Horizontal", 3),
    Sketcher.Constraint("Vertical", 5),
    Sketcher.Constraint("Horizontal", 7),
    Sketcher.Constraint("Vertical", 9),
    Sketcher.Constraint("Horizontal", 11),
    Sketcher.Constraint("Vertical", 13),
    Sketcher.Constraint("Horizontal", 15),
    Sketcher.Constraint("Vertical", 17),
    Sketcher.Constraint("Horizontal", 19),
    Sketcher.Constraint("Vertical", 21),
    Sketcher.Constraint("Horizontal", 23),
    Sketcher.Constraint("Vertical", 25),
    Sketcher.Constraint("Horizontal", 27),
    Sketcher.Constraint("Vertical", 29),
    Sketcher.Constraint("Horizontal", 31),
    Sketcher.Constraint("Vertical", 33),
    Sketcher.Constraint("Vertical", 35),
    Sketcher.Constraint("Horizontal", 37),
    Sketcher.Constraint("Vertical", 39),
    Sketcher.Constraint("Horizontal", 41),
    Sketcher.Constraint("Equal", 0, 1),
    Sketcher.Constraint("Equal", 1, 2),
    Sketcher.Constraint("Equal", 4, 6),
    Sketcher.Constraint("Equal", 6, 8),
    Sketcher.Constraint("Equal", 8, 10),
    Sketcher.Constraint("Equal", 10, 12),
    Sketcher.Constraint("Equal", 12, 14),
    Sketcher.Constraint("Equal", 14, 16),
    Sketcher.Constraint("Equal", 16, 18),
    Sketcher.Constraint("Equal", 18, 20),
    Sketcher.Constraint("Equal", 20, 22),
    Sketcher.Constraint("Equal", 22, 24),
    Sketcher.Constraint("Equal", 24, 26),
    Sketcher.Constraint("Equal", 26, 28),
    Sketcher.Constraint("Equal", 28, 30),
    Sketcher.Constraint("Equal", 30, 32),
    Sketcher.Constraint("Equal", 32, 34),
    Sketcher.Constraint("Equal", 34, 36),
    Sketcher.Constraint("Equal", 36, 38),
    Sketcher.Constraint("Equal", 38, 40),
    Sketcher.Constraint("Equal", 40, 42),
    Sketcher.Constraint("Horizontal", 0, 3, 1, 3),
    Sketcher.Constraint("Horizontal", 10, 3, 12, 3),
    Sketcher.Constraint("Horizontal", 8, 3, 14, 3),
    Sketcher.Constraint("Horizontal", 18, 3, 36, 3),
    Sketcher.Constraint("Horizontal", 16, 3, 40, 3),
    Sketcher.Constraint("Vertical", 22, 3, 28, 3),
    Sketcher.Constraint("Vertical", 26, 3, 32, 3),
    Sketcher.Constraint("Equal", 7, 11),
    Sketcher.Constraint("Equal", 15, 37),
    Sketcher.Constraint("Equal", 41, 21),
    Sketcher.Constraint("Equal", 25, 29),
    Sketcher.Constraint("Radius", 4, 1.0),
    Sketcher.Constraint("Diameter", 0, 4.2),
    Sketcher.Constraint("DistanceX", 3, 2, 3, 1, 4.0),
    Sketcher.Constraint("DistanceX", 19, 2, 19, 1, 6.0),
    Sketcher.Constraint("DistanceY", 5, 1, 5, 2, 7.0),
    Sketcher.Constraint("DistanceY", -1, 1, 0, 3, 125.5),
    Sketcher.Constraint("DistanceY", -1, 1, 4, 3, 121.8),
    Sketcher.Constraint("DistanceY", -1, 1, 20, 3, 107.8),
    Sketcher.Constraint("DistanceY", -1, 1, 28, 3, 87.8),
    Sketcher.Constraint("DistanceX", -1, 1, 0, 3, 2.28),
    Sketcher.Constraint("DistanceX", -1, 1, 1, 3, 48.28),
    Sketcher.Constraint("DistanceX", -1, 1, 2, 3, 24.28),
    Sketcher.Constraint("DistanceX", -1, 1, 4, 3, 37.78),
    Sketcher.Constraint("DistanceX", -1, 1, 12, 3, 7.78),
    Sketcher.Constraint("DistanceX", -1, 1, 20, 3, 21.28),
    Sketcher.Constraint("DistanceX", 36, 3, -1, 1, 9.22),
    Sketcher.Constraint("DistanceY", -1, 1, 2, 3, 99.327743),
])
pocket2 = body.newObject("PartDesign::Pocket", "Pocket001")
pocket2.Profile = sketch3
pocket2.Length = 27

# Sketch on XZ plane
sketch4 = body.newObject("Sketcher::SketchObject", "Sketch003")
sketch4.AttachmentSupport = (doc.getObject("XZ_Plane"), [""])
sketch4.MapMode = "FlatFace"
sketch4.addGeometry([
    Part.LineSegment(V(42, 95, 0), V(36, 95, 0)),  # 0
    Part.ArcOfCircle(Part.Circle(V(36, 98, 0), V(0, 0, 1), 3), math.radians(180), math.radians(270)),  # 1
    Part.LineSegment(V(33, 98, 0), V(33, 104, 0)),  # 2
    Part.ArcOfCircle(Part.Circle(V(36, 104, 0), V(0, 0, 1), 3), math.radians(90), math.radians(180)),  # 3
    Part.LineSegment(V(36, 107, 0), V(42, 107, 0)),  # 4
    Part.ArcOfCircle(Part.Circle(V(42, 104, 0), V(0, 0, 1), 3), math.radians(0), math.radians(90)),  # 5
    Part.LineSegment(V(45, 104, 0), V(45, 98, 0)),  # 6
    Part.ArcOfCircle(Part.Circle(V(42, 98, 0), V(0, 0, 1), 3), math.radians(-90), math.radians(0)),  # 7
], False)
sketch4.addConstraint([
    Sketcher.Constraint("Tangent", 0, 2, 1, 2),
    Sketcher.Constraint("Tangent", 1, 1, 2, 1),
    Sketcher.Constraint("Tangent", 2, 2, 3, 2),
    Sketcher.Constraint("Tangent", 3, 1, 4, 1),
    Sketcher.Constraint("Tangent", 4, 2, 5, 2),
    Sketcher.Constraint("Tangent", 5, 1, 6, 1),
    Sketcher.Constraint("Tangent", 6, 2, 7, 2),
    Sketcher.Constraint("Tangent", 7, 1, 0, 1),
    Sketcher.Constraint("Horizontal", 0),
    Sketcher.Constraint("Vertical", 2),
    Sketcher.Constraint("Horizontal", 4),
    Sketcher.Constraint("Vertical", 6),
    Sketcher.Constraint("Equal", 1, 3),
    Sketcher.Constraint("Equal", 3, 5),
    Sketcher.Constraint("Equal", 5, 7),
    Sketcher.Constraint("Equal", 4, 2),
    Sketcher.Constraint("Radius", 1, 3.0),
    Sketcher.Constraint("DistanceX", 0, 2, 0, 1, 6.0),
    Sketcher.Constraint("DistanceX", -1, 1, 1, 3, 36.0),
    Sketcher.Constraint("DistanceY", -1, 1, 1, 3, 98.0),
])
pocket3 = body.newObject("PartDesign::Pocket", "Pocket002")
pocket3.Profile = sketch4
pocket3.Length = 20

# Sketch on XZ plane
sketch5 = body.newObject("Sketcher::SketchObject", "Sketch004")
sketch5.AttachmentSupport = (doc.getObject("XZ_Plane"), [""])
sketch5.MapMode = "FlatFace"
sketch5.addGeometry([
    Part.Circle(V(0, 2, 0), V(0, 0, 1), 2.1),
    Part.Circle(V(-8, 102, 0), V(0, 0, 1), 2.1),
    Part.Circle(V(8, 102, 0), V(0, 0, 1), 2.1),
], False)
sketch5.addConstraint([
    Sketcher.Constraint("Equal", 0, 1),
    Sketcher.Constraint("Equal", 1, 2),
    Sketcher.Constraint("Symmetric", 1, 3, 2, 3, -2),
    Sketcher.Constraint("PointOnObject", 0, 3, -2),
    Sketcher.Constraint("Diameter", 0, 4.2),
    Sketcher.Constraint("DistanceY", -1, 1, 0, 3, 2.0),
    Sketcher.Constraint("DistanceX", 1, 3, -1, 1, 8.0),
    Sketcher.Constraint("DistanceY", -1, 1, 1, 3, 102.0),
])
pocket4 = body.newObject("PartDesign::Pocket", "Pocket003")
pocket4.Profile = sketch5
pocket4.Length = 20

doc.recompute()
